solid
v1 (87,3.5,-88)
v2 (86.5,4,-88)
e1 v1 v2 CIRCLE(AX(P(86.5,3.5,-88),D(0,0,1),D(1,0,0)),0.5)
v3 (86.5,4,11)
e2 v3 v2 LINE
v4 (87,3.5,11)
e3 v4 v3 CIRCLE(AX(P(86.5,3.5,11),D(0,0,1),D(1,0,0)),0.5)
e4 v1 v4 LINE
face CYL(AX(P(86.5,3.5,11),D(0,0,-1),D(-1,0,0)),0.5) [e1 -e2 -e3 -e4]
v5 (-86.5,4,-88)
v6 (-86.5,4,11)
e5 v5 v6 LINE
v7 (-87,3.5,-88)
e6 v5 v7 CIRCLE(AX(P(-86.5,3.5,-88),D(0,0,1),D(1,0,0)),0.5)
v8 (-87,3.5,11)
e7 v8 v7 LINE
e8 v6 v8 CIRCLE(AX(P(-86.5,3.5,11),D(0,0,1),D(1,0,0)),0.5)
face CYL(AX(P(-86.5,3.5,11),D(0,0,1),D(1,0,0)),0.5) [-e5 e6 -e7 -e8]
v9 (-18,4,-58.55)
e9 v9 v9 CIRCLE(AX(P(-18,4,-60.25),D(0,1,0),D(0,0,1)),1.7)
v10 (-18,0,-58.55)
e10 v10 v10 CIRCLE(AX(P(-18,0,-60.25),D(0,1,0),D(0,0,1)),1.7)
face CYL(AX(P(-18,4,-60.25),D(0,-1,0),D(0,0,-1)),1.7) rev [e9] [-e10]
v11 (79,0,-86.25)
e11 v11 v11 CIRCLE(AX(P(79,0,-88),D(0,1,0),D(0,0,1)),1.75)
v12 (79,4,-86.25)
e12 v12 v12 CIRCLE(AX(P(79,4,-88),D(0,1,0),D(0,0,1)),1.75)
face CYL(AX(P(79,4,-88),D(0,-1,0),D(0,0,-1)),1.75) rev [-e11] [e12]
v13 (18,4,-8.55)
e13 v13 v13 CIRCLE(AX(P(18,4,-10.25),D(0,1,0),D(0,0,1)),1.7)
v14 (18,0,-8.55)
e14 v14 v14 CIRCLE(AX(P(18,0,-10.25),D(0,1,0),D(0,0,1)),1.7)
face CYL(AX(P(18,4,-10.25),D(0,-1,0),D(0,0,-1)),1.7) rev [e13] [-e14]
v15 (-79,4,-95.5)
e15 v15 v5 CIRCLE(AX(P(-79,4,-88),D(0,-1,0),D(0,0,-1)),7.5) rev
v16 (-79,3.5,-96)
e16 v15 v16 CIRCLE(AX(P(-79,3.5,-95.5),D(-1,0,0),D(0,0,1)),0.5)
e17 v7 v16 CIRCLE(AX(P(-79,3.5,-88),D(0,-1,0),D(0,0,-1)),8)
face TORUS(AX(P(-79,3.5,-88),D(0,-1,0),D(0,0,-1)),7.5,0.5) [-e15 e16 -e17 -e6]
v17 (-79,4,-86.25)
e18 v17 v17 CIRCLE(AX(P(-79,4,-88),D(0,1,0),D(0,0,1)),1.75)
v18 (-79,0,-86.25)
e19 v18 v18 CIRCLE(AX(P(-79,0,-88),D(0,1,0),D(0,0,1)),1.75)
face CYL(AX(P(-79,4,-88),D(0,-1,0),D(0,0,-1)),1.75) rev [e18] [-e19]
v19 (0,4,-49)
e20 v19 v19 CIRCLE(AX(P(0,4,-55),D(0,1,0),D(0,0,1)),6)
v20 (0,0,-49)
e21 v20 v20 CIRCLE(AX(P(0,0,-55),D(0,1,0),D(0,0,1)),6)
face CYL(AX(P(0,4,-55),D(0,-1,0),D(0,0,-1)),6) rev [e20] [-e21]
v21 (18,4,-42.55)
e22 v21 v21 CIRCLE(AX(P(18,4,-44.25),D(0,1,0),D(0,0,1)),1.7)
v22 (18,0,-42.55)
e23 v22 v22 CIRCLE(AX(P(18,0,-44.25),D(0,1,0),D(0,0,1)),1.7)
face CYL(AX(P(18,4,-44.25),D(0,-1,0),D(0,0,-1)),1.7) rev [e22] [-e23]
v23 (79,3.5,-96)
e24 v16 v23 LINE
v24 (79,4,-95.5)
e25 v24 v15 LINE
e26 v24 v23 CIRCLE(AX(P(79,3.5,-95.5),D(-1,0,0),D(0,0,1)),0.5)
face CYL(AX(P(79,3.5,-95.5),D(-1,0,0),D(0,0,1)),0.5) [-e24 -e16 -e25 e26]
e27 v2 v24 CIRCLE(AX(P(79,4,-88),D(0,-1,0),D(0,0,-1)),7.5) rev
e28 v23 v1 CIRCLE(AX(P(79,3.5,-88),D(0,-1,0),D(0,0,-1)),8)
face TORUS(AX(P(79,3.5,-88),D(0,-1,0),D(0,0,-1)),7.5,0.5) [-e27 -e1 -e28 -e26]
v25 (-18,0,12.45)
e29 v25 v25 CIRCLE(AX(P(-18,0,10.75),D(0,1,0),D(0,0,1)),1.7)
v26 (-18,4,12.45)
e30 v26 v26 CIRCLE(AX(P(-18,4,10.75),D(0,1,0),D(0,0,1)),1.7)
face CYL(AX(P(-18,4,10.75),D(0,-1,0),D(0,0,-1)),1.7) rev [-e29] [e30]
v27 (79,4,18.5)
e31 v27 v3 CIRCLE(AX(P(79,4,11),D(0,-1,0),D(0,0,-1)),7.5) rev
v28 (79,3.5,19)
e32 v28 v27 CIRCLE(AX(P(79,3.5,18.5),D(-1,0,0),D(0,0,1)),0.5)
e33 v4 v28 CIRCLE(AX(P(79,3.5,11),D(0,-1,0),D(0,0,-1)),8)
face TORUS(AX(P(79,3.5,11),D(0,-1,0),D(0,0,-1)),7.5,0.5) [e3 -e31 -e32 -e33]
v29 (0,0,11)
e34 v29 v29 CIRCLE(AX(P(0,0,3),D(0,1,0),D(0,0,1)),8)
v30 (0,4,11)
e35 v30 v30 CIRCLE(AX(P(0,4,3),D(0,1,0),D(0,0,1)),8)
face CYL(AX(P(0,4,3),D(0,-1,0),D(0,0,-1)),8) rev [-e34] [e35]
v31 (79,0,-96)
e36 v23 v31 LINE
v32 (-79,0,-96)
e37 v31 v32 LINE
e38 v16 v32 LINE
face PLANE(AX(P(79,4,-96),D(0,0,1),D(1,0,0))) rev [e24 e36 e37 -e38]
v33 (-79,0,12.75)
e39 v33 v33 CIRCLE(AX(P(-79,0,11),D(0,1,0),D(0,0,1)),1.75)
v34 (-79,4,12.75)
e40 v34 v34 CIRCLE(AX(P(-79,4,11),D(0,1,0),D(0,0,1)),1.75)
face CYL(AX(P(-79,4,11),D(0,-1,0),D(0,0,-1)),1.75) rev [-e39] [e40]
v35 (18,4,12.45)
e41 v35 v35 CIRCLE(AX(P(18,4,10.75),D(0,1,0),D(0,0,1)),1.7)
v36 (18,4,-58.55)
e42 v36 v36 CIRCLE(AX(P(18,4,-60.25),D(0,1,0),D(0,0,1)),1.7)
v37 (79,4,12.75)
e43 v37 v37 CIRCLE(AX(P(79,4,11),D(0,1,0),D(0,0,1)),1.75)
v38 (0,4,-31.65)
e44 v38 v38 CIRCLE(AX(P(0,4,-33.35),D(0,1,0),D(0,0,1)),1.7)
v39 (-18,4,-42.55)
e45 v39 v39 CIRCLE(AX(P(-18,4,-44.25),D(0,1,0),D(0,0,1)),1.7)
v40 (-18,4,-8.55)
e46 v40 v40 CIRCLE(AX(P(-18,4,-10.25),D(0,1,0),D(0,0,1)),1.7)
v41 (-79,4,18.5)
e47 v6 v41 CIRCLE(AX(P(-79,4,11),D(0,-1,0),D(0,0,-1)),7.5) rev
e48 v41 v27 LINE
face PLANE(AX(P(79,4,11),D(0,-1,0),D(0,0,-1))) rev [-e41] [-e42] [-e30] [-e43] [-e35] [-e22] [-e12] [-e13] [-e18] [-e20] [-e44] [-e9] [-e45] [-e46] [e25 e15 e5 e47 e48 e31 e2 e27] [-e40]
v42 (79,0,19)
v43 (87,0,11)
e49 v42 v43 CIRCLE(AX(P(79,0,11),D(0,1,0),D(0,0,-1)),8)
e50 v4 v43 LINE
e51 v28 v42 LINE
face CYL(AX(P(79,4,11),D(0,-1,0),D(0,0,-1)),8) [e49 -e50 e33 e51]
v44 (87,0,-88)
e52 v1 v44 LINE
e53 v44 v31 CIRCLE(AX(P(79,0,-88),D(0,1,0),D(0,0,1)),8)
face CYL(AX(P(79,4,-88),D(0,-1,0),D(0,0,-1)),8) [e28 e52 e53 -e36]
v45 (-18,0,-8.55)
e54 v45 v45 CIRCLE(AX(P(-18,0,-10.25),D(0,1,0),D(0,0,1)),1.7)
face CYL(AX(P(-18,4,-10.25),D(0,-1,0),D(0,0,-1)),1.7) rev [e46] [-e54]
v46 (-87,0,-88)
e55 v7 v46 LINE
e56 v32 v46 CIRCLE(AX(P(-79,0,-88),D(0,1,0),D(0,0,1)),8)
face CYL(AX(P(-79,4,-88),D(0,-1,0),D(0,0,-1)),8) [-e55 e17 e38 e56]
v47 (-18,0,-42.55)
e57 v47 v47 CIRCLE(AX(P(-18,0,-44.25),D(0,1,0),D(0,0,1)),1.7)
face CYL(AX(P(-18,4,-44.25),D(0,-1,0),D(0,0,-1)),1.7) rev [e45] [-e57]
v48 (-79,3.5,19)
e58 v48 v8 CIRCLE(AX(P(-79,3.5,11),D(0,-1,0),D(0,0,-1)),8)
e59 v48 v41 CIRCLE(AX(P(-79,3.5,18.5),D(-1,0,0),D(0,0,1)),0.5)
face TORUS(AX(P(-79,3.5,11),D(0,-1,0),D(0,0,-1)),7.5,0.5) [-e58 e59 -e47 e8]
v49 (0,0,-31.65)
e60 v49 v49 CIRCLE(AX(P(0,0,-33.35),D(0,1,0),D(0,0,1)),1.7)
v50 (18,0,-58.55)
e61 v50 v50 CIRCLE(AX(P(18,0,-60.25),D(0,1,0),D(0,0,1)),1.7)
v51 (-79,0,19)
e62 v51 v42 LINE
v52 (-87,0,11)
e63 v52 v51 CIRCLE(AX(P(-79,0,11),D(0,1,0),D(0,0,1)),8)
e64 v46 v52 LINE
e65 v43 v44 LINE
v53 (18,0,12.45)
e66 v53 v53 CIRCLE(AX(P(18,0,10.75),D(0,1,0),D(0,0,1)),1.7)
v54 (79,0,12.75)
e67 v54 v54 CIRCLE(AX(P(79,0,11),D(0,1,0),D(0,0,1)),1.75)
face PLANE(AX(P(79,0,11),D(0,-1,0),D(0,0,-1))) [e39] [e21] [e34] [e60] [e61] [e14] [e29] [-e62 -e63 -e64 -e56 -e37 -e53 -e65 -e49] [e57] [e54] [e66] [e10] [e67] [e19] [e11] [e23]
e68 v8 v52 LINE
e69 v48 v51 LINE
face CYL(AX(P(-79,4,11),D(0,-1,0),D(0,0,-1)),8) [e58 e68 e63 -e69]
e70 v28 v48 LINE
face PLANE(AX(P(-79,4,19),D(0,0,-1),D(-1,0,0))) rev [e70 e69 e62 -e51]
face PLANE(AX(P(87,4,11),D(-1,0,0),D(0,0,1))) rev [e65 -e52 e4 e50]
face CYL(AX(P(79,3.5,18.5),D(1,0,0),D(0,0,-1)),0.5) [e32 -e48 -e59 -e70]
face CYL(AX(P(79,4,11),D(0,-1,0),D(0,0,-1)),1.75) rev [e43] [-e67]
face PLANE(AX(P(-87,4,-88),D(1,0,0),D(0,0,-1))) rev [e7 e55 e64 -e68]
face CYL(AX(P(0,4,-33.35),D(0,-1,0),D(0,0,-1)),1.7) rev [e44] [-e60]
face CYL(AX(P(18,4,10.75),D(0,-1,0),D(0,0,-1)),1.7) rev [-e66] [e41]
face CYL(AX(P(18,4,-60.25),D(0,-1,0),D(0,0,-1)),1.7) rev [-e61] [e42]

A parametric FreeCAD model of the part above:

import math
import FreeCAD as App
import Part
import Sketcher
Q = App.Units.Quantity


def edges_at(feature, points):
    """Names of the edges that pass closest to the given points."""
    edges = feature.Shape.Edges
    near = lambda p: min(range(len(edges)), key=lambda i: edges[i].distToShape(Part.Vertex(*p))[0])
    return sorted({f"Edge{near(p) + 1}" for p in points})

doc = App.newDocument("Part")
body = doc.addObject("PartDesign::Body", "Body")

# Sketch on XZ plane
sketch1 = body.newObject("Sketcher::SketchObject", "Sketch")
sketch1.AttachmentSupport = (doc.getObject("XZ_Plane"), [""])
sketch1.MapMode = "FlatFace"
sketch1.addGeometry(Part.LineSegment(App.Vector(87, 11, 0), App.Vector(87, -88, 0)), False)
sketch1.addGeometry(Part.ArcOfCircle(Part.Circle(App.Vector(79, -88, 0), App.Vector(0, 0, 1), 8), math.radians(-90), math.radians(0)), False)
sketch1.addGeometry(Part.LineSegment(App.Vector(79, -96, 0), App.Vector(-79, -96, 0)), False)
sketch1.addGeometry(Part.ArcOfCircle(Part.Circle(App.Vector(-79, -88, 0), App.Vector(0, 0, 1), 8), math.radians(-180), math.radians(-90)), False)
sketch1.addGeometry(Part.LineSegment(App.Vector(-87, -88, 0), App.Vector(-87, 11, 0)), False)
sketch1.addGeometry(Part.ArcOfCircle(Part.Circle(App.Vector(-79, 11, 0), App.Vector(0, 0, 1), 8), math.radians(90), math.radians(180)), False)
sketch1.addGeometry(Part.LineSegment(App.Vector(-79, 19, 0), App.Vector(79, 19, 0)), False)
sketch1.addGeometry(Part.ArcOfCircle(Part.Circle(App.Vector(79, 11, 0), App.Vector(0, 0, 1), 8), math.radians(0), math.radians(90)), False)
sketch1.addGeometry(Part.Circle(App.Vector(-79, 11, 0), App.Vector(0, 0, 1), 1.75), False)
sketch1.addGeometry(Part.Circle(App.Vector(-18, 10.75, 0), App.Vector(0, 0, 1), 1.7), False)
sketch1.addGeometry(Part.Circle(App.Vector(-18, -10.25, 0), App.Vector(0, 0, 1), 1.7), False)
sketch1.addGeometry(Part.Circle(App.Vector(18, 10.75, 0), App.Vector(0, 0, 1), 1.7), False)
sketch1.addGeometry(Part.Circle(App.Vector(0, 3, 0), App.Vector(0, 0, 1), 8), False)
sketch1.addGeometry(Part.Circle(App.Vector(18, -10.25, 0), App.Vector(0, 0, 1), 1.7), False)
sketch1.addGeometry(Part.Circle(App.Vector(79, 11, 0), App.Vector(0, 0, 1), 1.75), False)
sketch1.addGeometry(Part.Circle(App.Vector(0, -33.35, 0), App.Vector(0, 0, 1), 1.7), False)
sketch1.addGeometry(Part.Circle(App.Vector(-18, -44.25, 0), App.Vector(0, 0, 1), 1.7), False)
sketch1.addGeometry(Part.Circle(App.Vector(-18, -60.25, 0), App.Vector(0, 0, 1), 1.7), False)
sketch1.addGeometry(Part.Circle(App.Vector(-79, -88, 0), App.Vector(0, 0, 1), 1.75), False)
sketch1.addGeometry(Part.Circle(App.Vector(18, -44.25, 0), App.Vector(0, 0, 1), 1.7), False)
sketch1.addGeometry(Part.Circle(App.Vector(0, -55, 0), App.Vector(0, 0, 1), 6), False)
sketch1.addGeometry(Part.Circle(App.Vector(18, -60.25, 0), App.Vector(0, 0, 1), 1.7), False)
sketch1.addGeometry(Part.Circle(App.Vector(79, -88, 0), App.Vector(0, 0, 1), 1.75), False)
sketch1.addConstraint(Sketcher.Constraint("Tangent", 0, 2, 1, 2))
sketch1.addConstraint(Sketcher.Constraint("Tangent", 1, 1, 2, 1))
sketch1.addConstraint(Sketcher.Constraint("Tangent", 2, 2, 3, 2))
sketch1.addConstraint(Sketcher.Constraint("Tangent", 3, 1, 4, 1))
sketch1.addConstraint(Sketcher.Constraint("Tangent", 4, 2, 5, 2))
sketch1.addConstraint(Sketcher.Constraint("Tangent", 5, 1, 6, 1))
sketch1.addConstraint(Sketcher.Constraint("Tangent", 6, 2, 7, 2))
sketch1.addConstraint(Sketcher.Constraint("Tangent", 7, 1, 0, 1))
sketch1.addConstraint(Sketcher.Constraint("Vertical", 0))
sketch1.addConstraint(Sketcher.Constraint("Horizontal", 2))
sketch1.addConstraint(Sketcher.Constraint("Vertical", 4))
sketch1.addConstraint(Sketcher.Constraint("Horizontal", 6))
sketch1.addConstraint(Sketcher.Constraint("Coincident", 8, 3, 5, 3))
sketch1.addConstraint(Sketcher.Constraint("Coincident", 14, 3, 7, 3))
sketch1.addConstraint(Sketcher.Constraint("Coincident", 18, 3, 3, 3))
sketch1.addConstraint(Sketcher.Constraint("Coincident", 22, 3, 1, 3))
sketch1.addConstraint(Sketcher.Constraint("Equal", 1, 3))
sketch1.addConstraint(Sketcher.Constraint("Equal", 3, 5))
sketch1.addConstraint(Sketcher.Constraint("Equal", 5, 7))
sketch1.addConstraint(Sketcher.Constraint("Equal", 9, 10))
sketch1.addConstraint(Sketcher.Constraint("Equal", 10, 11))
sketch1.addConstraint(Sketcher.Constraint("Equal", 7, 12))
sketch1.addConstraint(Sketcher.Constraint("Equal", 11, 13))
sketch1.addConstraint(Sketcher.Constraint("Equal", 8, 14))
sketch1.addConstraint(Sketcher.Constraint("Equal", 13, 15))
sketch1.addConstraint(Sketcher.Constraint("Equal", 15, 16))
sketch1.addConstraint(Sketcher.Constraint("Equal", 16, 17))
sketch1.addConstraint(Sketcher.Constraint("Equal", 14, 18))
sketch1.addConstraint(Sketcher.Constraint("Equal", 17, 19))
sketch1.addConstraint(Sketcher.Constraint("Equal", 19, 21))
sketch1.addConstraint(Sketcher.Constraint("Equal", 18, 22))
sketch1.addConstraint(Sketcher.Constraint("Symmetric", 9, 3, 11, 3, -2))
sketch1.addConstraint(Sketcher.Constraint("Symmetric", 10, 3, 13, 3, -2))
sketch1.addConstraint(Sketcher.Constraint("Symmetric", 16, 3, 19, 3, -2))
sketch1.addConstraint(Sketcher.Constraint("Symmetric", 17, 3, 21, 3, -2))
sketch1.addConstraint(Sketcher.Constraint("PointOnObject", 12, 3, -2))
sketch1.addConstraint(Sketcher.Constraint("PointOnObject", 15, 3, -2))
sketch1.addConstraint(Sketcher.Constraint("PointOnObject", 20, 3, -2))
sketch1.addConstraint(Sketcher.Constraint("Vertical", 9, 3, 10, 3))
sketch1.addConstraint(Sketcher.Constraint("Vertical", 10, 3, 16, 3))
sketch1.addConstraint(Sketcher.Constraint("Vertical", 16, 3, 17, 3))
sketch1.addConstraint(Sketcher.Constraint("Diameter", 12, Q("16 mm")))
sketch1.addConstraint(Sketcher.Constraint("Diameter", 20, Q("12 mm")))
sketch1.addConstraint(Sketcher.Constraint("Diameter", 8, Q("3.5 mm")))
sketch1.addConstraint(Sketcher.Constraint("Diameter", 9, Q("3.4 mm")))
sketch1.addConstraint(Sketcher.Constraint("DistanceX", 2, 2, 2, 1, Q("158 mm")))
sketch1.addConstraint(Sketcher.Constraint("DistanceY", 0, 2, 0, 1, Q("99 mm")))
sketch1.addConstraint(Sketcher.Constraint("DistanceX", -1, 1, 1, 3, Q("79 mm")))
sketch1.addConstraint(Sketcher.Constraint("DistanceY", 1, 3, -1, 1, Q("88 mm")))
sketch1.addConstraint(Sketcher.Constraint("DistanceX", 9, 3, -1, 1, Q("18 mm")))
sketch1.addConstraint(Sketcher.Constraint("DistanceY", -1, 1, 12, 3, Q("3 mm")))
sketch1.addConstraint(Sketcher.Constraint("DistanceY", 20, 3, -1, 1, Q("55 mm")))
sketch1.addConstraint(Sketcher.Constraint("DistanceY", 10, 3, 9, 3, Q("21 mm")))
sketch1.addConstraint(Sketcher.Constraint("DistanceY", 16, 3, 10, 3, Q("34 mm")))
sketch1.addConstraint(Sketcher.Constraint("DistanceY", 17, 3, 16, 3, Q("16 mm")))
sketch1.addConstraint(Sketcher.Constraint("DistanceY", 15, 3, 10, 3, Q("23.1 mm")))
sketch1.addConstraint(Sketcher.Constraint("DistanceY", -1, 1, 9, 3, Q("10.75 mm")))
pad1 = body.newObject("PartDesign::Pad", "Pad")
pad1.Profile = sketch1
pad1.Length = 4
pad1.Reversed = True
doc.recompute()

fillet = body.newObject("PartDesign::Fillet", "Fillet")
fillet.Base = (pad1, edges_at(pad1, [
    (84.657, 4, -93.657),
    (0, 4, -96),
    (-84.657, 4, -93.657),
    (-87, 4, -38.5),
    (-84.657, 4, 16.657),
    (0, 4, 19),
    (84.657, 4, 16.657),
    (87, 4, -38.5),
]))
fillet.Radius = 0.5

doc.recompute()
